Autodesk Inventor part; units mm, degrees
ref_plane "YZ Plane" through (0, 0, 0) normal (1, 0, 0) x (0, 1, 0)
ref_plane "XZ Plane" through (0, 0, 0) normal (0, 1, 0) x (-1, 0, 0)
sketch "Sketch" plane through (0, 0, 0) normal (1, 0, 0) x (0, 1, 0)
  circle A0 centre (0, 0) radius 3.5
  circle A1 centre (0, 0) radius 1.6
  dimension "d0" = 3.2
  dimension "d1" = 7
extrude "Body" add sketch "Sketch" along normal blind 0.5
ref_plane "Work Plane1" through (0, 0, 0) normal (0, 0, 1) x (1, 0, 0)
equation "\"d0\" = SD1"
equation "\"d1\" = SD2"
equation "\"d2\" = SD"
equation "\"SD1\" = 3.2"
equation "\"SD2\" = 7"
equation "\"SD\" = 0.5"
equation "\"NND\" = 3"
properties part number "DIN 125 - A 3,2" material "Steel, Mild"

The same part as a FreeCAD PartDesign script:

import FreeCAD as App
import Part
import Sketcher

V = App.Vector
Q = App.Units.Quantity

doc = App.newDocument("Part")
body = doc.addObject("PartDesign::Body", "Body")

sketch1 = body.newObject("Sketcher::SketchObject", "Sketch")
sketch1.AttachmentSupport = (doc.getObject("YZ_Plane"), [""])
sketch1.MapMode = "FlatFace"
sketch1.addGeometry([
    Part.Circle(V(0, 0, 0), V(0, 0, 1), 3.5),
    Part.Circle(V(0, 0, 0), V(0, 0, 1), 1.6),
], False)
sketch1.addConstraint([
    Sketcher.Constraint("Coincident", 0, 3, -1, 1),
    Sketcher.Constraint("Coincident", 1, 3, -1, 1),
    Sketcher.Constraint("Diameter", 0, Q("7 mm")),
    Sketcher.Constraint("Diameter", 1, Q("3.2 mm")),
])
pad1 = body.newObject("PartDesign::Pad", "Pad")
pad1.Profile = sketch1
pad1.Length = 0.5

doc.recompute()
